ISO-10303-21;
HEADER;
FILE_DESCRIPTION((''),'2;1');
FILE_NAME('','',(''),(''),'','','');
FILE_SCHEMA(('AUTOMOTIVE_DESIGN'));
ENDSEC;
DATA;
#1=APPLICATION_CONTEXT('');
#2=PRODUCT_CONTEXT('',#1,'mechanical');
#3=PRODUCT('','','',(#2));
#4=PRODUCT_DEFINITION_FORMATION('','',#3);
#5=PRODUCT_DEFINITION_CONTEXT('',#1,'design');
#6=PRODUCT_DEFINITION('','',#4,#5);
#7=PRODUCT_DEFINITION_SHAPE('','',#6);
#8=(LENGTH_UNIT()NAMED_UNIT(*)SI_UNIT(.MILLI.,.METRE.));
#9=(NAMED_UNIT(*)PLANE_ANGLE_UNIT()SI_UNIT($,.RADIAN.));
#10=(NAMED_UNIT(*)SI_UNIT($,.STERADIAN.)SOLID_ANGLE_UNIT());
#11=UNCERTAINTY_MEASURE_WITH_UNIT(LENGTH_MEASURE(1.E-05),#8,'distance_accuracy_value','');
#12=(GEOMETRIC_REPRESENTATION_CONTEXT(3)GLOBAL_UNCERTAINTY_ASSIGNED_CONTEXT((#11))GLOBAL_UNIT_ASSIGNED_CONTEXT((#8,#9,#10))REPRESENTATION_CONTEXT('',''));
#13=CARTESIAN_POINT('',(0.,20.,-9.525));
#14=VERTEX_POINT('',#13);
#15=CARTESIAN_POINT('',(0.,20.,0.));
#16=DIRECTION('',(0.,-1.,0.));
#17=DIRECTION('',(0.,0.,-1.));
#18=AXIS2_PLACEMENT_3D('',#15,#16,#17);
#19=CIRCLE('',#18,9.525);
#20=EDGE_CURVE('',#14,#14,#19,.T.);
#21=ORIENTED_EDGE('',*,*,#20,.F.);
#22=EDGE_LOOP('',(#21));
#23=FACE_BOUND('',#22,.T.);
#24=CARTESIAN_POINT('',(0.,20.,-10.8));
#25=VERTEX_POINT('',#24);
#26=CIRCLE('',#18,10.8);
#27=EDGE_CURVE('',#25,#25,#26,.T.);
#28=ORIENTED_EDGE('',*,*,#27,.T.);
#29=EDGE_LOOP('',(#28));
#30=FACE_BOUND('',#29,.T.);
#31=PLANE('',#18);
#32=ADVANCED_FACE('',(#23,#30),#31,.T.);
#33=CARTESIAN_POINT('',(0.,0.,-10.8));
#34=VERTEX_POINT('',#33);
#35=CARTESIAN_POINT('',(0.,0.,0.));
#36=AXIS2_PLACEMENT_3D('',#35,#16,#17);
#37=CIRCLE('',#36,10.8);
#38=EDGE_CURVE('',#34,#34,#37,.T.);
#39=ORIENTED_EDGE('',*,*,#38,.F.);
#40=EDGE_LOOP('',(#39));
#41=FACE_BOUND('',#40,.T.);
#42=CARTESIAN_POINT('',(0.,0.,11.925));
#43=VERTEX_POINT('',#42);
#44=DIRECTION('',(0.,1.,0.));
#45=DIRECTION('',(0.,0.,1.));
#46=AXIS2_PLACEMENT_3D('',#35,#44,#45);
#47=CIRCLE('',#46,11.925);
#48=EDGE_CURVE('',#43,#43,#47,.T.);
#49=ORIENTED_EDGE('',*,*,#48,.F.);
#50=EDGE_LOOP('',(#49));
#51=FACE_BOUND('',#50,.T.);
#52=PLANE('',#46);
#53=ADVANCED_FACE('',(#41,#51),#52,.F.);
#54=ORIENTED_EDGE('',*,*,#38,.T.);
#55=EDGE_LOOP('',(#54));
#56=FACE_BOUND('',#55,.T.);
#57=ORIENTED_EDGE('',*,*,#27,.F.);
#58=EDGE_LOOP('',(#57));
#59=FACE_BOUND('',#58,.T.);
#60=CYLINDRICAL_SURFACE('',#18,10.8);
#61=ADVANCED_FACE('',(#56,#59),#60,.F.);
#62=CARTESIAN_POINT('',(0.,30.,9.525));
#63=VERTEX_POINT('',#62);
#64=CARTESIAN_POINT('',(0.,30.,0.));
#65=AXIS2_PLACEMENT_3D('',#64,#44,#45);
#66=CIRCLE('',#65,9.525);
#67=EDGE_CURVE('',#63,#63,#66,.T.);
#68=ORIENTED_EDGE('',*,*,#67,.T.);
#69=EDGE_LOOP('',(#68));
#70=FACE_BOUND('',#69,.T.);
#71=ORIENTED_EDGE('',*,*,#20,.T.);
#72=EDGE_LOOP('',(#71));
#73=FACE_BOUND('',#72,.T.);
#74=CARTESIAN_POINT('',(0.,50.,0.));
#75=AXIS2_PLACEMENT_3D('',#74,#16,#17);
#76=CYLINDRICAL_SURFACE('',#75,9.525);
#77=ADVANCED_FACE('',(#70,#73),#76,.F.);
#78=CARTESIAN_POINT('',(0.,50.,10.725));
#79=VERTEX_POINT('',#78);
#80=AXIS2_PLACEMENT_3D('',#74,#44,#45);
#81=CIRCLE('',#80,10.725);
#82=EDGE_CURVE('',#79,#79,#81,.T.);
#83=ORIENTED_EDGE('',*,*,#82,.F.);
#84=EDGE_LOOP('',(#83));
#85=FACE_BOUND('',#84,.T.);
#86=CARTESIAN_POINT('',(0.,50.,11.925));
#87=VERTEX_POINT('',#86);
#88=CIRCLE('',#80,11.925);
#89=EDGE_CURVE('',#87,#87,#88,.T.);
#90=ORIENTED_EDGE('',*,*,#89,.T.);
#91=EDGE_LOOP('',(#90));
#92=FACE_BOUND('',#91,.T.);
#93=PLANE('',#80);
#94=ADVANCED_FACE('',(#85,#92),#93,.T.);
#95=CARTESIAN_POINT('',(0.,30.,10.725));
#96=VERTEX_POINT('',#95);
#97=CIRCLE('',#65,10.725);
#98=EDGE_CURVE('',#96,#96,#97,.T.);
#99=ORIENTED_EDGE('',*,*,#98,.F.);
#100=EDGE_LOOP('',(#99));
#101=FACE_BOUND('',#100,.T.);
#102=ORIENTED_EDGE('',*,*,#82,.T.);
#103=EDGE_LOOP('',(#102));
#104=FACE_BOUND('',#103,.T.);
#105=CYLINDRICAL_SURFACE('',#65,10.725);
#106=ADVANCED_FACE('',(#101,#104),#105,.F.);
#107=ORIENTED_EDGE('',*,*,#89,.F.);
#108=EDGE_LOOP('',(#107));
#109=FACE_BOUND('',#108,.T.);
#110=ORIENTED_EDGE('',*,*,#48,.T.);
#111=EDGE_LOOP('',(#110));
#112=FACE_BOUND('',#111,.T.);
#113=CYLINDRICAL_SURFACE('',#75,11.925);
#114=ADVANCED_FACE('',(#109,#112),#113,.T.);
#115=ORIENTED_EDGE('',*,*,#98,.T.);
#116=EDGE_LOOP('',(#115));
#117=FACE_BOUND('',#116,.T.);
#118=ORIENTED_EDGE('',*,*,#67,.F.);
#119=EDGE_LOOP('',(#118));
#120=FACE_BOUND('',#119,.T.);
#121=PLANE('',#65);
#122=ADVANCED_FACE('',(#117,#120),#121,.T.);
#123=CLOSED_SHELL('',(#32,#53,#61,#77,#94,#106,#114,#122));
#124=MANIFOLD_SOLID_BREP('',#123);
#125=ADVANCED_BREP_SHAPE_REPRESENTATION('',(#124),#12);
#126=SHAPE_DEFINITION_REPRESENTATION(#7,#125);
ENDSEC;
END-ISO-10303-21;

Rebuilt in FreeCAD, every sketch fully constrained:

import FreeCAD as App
import Part
import Sketcher
from FreeCAD import Vector
Q = App.Units.Quantity

doc = App.newDocument("Part")
body = doc.addObject("PartDesign::Body", "Body")

# Sketch on XZ plane
sketch1 = doc.addObject("Sketcher::SketchObject", "Sketch")
body.addObject(sketch1)
sketch1.AttachmentSupport = (doc.XZ_Plane, [""])
sketch1.MapMode = "FlatFace"
sketch1.addGeometry([
    Part.Circle(Vector(0, 0, 0), Vector(0, 0, 1), 12),
    Part.Circle(Vector(0, 0, 0), Vector(0, 0, 1), 10),
], False)
sketch1.addConstraint([
    Sketcher.Constraint("Coincident", 0, 3, -1, 1),
    Sketcher.Constraint("Coincident", 1, 3, -1, 1),
    Sketcher.Constraint("Diameter", 0, Q("23.85 mm")),
    Sketcher.Constraint("Diameter", 1, Q("19.05 mm")),
])
pad1 = doc.addObject("PartDesign::Pad", "Pad")
body.addObject(pad1)
pad1.Profile = sketch1
pad1.Length = 50
pad1.Reversed = True

# Sketch on XZ plane
sketch2 = doc.addObject("Sketcher::SketchObject", "Sketch001")
body.addObject(sketch2)
sketch2.AttachmentSupport = (doc.XZ_Plane, [""])
sketch2.MapMode = "FlatFace"
sketch2.addGeometry(Part.Circle(Vector(0, 0, 0), Vector(0, 0, 1), 11), False)
sketch2.addConstraint([
    Sketcher.Constraint("Coincident", 0, 3, -1, 1),
    Sketcher.Constraint("Diameter", 0, Q("21.6 mm")),
])
pocket1 = doc.addObject("PartDesign::Pocket", "Pocket")
body.addObject(pocket1)
pocket1.Profile = sketch2
pocket1.Length = 20

# Sketch on XZ plane
sketch3 = doc.addObject("Sketcher::SketchObject", "Sketch002")
body.addObject(sketch3)
sketch3.AttachmentSupport = (doc.XZ_Plane, [""])
sketch3.MapMode = "FlatFace"
sketch3.AttachmentOffset = App.Placement(Vector(0, 0, -50), App.Rotation())
sketch3.addGeometry(Part.Circle(Vector(0, 0, 0), Vector(0, 0, 1), 11), False)
sketch3.addConstraint([
    Sketcher.Constraint("Coincident", 0, 3, -1, 1),
    Sketcher.Constraint("Diameter", 0, Q("21.45 mm")),
])
pocket2 = doc.addObject("PartDesign::Pocket", "Pocket001")
body.addObject(pocket2)
pocket2.Profile = sketch3
pocket2.Length = 20
pocket2.Reversed = True

doc.recompute()
